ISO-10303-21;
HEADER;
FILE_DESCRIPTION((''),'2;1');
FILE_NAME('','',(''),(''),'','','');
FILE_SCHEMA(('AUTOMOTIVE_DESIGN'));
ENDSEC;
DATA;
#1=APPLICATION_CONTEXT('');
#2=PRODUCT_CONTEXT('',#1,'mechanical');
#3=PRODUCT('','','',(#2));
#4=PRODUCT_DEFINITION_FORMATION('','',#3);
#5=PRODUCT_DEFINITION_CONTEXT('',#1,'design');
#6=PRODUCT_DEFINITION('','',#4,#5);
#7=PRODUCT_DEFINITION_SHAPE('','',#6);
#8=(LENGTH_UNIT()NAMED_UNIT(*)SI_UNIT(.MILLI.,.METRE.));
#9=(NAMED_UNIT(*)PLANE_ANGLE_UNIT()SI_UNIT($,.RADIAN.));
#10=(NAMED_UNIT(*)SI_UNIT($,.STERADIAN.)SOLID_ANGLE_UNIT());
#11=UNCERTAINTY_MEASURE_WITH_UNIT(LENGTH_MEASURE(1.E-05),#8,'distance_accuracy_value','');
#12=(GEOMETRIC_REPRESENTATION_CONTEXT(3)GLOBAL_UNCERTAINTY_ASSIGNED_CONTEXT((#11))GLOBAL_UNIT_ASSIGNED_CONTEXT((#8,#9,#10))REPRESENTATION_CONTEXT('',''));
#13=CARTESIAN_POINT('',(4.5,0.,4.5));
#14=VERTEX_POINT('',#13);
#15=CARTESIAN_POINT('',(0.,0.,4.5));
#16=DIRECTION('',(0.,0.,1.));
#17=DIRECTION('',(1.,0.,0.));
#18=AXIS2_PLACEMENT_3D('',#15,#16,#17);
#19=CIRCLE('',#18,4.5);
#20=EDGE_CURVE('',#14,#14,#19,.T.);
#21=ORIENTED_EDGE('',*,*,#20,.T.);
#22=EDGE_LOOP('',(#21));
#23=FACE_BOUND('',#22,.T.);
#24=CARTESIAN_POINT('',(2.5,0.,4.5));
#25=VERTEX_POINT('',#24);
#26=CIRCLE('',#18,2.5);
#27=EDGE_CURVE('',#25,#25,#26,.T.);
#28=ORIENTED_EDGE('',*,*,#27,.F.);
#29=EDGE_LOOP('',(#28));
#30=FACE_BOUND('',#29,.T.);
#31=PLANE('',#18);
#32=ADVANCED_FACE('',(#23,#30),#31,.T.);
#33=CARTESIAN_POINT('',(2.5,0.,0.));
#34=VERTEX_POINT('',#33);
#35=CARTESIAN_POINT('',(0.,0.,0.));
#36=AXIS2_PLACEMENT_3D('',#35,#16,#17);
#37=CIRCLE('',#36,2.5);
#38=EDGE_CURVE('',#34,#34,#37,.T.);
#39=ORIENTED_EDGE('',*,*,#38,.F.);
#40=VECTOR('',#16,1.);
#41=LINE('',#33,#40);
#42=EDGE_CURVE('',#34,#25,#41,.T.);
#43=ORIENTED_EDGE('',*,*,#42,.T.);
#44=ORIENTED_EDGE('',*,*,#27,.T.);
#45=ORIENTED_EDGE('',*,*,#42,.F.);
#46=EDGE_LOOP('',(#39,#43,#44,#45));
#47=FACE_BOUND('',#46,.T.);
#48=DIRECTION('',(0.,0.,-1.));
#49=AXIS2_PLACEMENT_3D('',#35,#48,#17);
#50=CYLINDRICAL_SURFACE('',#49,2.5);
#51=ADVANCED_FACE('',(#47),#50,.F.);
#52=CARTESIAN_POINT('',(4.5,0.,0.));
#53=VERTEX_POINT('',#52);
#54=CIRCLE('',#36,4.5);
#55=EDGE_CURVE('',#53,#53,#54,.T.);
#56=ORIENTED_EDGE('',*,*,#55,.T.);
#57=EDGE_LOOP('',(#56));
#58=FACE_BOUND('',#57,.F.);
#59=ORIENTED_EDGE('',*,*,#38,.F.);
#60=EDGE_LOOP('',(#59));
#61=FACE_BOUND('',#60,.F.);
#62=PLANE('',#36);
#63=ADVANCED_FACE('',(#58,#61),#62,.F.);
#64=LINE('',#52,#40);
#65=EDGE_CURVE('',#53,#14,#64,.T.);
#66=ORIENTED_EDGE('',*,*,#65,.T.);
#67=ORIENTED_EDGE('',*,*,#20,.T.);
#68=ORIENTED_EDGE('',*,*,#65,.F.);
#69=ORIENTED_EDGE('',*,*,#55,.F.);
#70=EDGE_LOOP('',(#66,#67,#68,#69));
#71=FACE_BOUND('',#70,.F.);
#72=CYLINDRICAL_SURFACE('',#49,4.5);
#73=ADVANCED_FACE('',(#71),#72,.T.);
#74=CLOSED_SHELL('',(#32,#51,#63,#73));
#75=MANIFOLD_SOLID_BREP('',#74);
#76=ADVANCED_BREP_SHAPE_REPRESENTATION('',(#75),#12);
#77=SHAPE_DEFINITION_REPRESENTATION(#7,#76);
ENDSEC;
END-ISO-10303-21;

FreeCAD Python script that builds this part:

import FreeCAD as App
import Part
import Sketcher
from FreeCAD import Vector

doc = App.newDocument("Part")
body = doc.addObject("PartDesign::Body", "Body")

# Sketch on XY plane
sketch1 = body.newObject("Sketcher::SketchObject", "Sketch")
sketch1.AttachmentSupport = (doc.getObject("XY_Plane"), [""])
sketch1.MapMode = "FlatFace"
sketch1.addGeometry(Part.Circle(Vector(0, 0, 0), Vector(0, 0, 1), 4.5), False)
sketch1.addGeometry(Part.Circle(Vector(0, 0, 0), Vector(0, 0, 1), 2.5), False)
sketch1.addConstraint(Sketcher.Constraint("Coincident", 0, 3, -1, 1))
sketch1.addConstraint(Sketcher.Constraint("Coincident", 1, 3, -1, 1))
sketch1.addConstraint(Sketcher.Constraint("Diameter", 0, 9.0))
sketch1.addConstraint(Sketcher.Constraint("Diameter", 1, 5.0))
pad1 = body.newObject("PartDesign::Pad", "Pad")
pad1.Profile = sketch1
pad1.Length = 4.5

doc.recompute()
